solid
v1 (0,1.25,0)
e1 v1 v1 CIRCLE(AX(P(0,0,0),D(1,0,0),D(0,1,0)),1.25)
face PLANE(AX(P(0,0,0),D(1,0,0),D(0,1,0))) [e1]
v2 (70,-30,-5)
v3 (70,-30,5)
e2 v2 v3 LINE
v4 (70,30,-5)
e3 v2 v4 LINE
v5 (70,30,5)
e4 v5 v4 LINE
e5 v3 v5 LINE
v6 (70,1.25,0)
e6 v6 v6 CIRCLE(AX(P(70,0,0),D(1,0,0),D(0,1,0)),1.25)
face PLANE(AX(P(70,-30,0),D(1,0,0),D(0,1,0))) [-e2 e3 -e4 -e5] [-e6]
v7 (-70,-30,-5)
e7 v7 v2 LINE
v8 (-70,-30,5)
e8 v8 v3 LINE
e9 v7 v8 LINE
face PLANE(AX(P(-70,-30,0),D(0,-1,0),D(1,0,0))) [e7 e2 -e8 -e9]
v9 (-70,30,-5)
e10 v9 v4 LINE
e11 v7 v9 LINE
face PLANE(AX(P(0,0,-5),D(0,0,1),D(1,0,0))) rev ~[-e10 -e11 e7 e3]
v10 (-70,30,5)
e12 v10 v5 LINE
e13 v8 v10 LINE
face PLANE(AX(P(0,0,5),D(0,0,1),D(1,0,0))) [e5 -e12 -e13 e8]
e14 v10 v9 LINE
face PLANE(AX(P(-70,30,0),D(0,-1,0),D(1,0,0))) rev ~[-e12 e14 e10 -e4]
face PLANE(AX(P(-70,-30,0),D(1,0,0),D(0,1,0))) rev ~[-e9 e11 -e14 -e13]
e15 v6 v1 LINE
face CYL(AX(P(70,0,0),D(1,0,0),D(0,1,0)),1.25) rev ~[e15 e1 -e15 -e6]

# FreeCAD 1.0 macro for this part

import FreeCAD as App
import Part
import Sketcher
from FreeCAD import Vector
Q = App.Units.Quantity


def add_polygon(sketch, points):
    """Adds a closed chain of lines whose ends are joined by coincident constraints."""
    first, n = sketch.GeometryCount, len(points)
    for a, b in zip(points, points[1:] + points[:1]):
        sketch.addGeometry(Part.LineSegment(App.Vector(*a, 0), App.Vector(*b, 0)), False)
    for i in range(n):
        sketch.addConstraint(Sketcher.Constraint("Coincident", first + i, 2, first + (i + 1) % n, 1))

doc = App.newDocument("Part")
params = doc.addObject("Spreadsheet::Sheet", "Params")
for row, (alias, value) in enumerate([
    ("sketch1_width", "140 mm"),
    ("sketch1_height", "60 mm"),
    ("pad1_length", "10 mm"),
    ("sketch2_diameter", "2.5 mm"),
    ("pocket1_length", "70 mm"),
], start=1):
    params.set(f"A{row}", alias)
    params.set(f"B{row}", "=" + value)
    params.setAlias(f"B{row}", alias)

body = doc.addObject("PartDesign::Body", "Body")

sketch1 = body.newObject("Sketcher::SketchObject", "Sketch")
sketch1.AttachmentSupport = (doc.getObject("XY_Plane"), [""])
sketch1.MapMode = "FlatFace"
add_polygon(sketch1, [(-70, 30), (-70, -30), (70, -30), (70, 30)])
sketch1.addConstraint([
    Sketcher.Constraint("Vertical", 0),
    Sketcher.Constraint("Horizontal", 1),
    Sketcher.Constraint("Vertical", 2),
    Sketcher.Constraint("Horizontal", 3),
    Sketcher.Constraint("Symmetric", 0, 2, 2, 2, -1, 1),
    Sketcher.Constraint("DistanceX", 1, 1, 1, 2, Q("140 mm")),
    Sketcher.Constraint("DistanceY", 0, 2, 0, 1, Q("60 mm")),
])
sketch1.setExpression("Constraints[9]", "Params.sketch1_width")
sketch1.setExpression("Constraints[10]", "Params.sketch1_height")
pad1 = body.newObject("PartDesign::Pad", "Pad")
pad1.Profile = sketch1
pad1.setExpression("Length", "Params.pad1_length")
pad1.Midplane = True

sketch2 = body.newObject("Sketcher::SketchObject", "Sketch001")
sketch2.AttachmentSupport = (doc.getObject("YZ_Plane"), [""])
sketch2.MapMode = "FlatFace"
sketch2.AttachmentOffset = App.Placement(Vector(0, 0, 70), App.Rotation())
sketch2.addGeometry(Part.Circle(Vector(0, 0, 0), Vector(0, 0, 1), 1.2), False)
sketch2.addConstraint([
    Sketcher.Constraint("Coincident", 0, 3, -1, 1),
    Sketcher.Constraint("Diameter", 0, Q("2.5 mm")),
])
sketch2.setExpression("Constraints[1]", "Params.sketch2_diameter")
pocket1 = body.newObject("PartDesign::Pocket", "Pocket")
pocket1.Profile = sketch2
pocket1.setExpression("Length", "Params.pocket1_length")

doc.recompute()
